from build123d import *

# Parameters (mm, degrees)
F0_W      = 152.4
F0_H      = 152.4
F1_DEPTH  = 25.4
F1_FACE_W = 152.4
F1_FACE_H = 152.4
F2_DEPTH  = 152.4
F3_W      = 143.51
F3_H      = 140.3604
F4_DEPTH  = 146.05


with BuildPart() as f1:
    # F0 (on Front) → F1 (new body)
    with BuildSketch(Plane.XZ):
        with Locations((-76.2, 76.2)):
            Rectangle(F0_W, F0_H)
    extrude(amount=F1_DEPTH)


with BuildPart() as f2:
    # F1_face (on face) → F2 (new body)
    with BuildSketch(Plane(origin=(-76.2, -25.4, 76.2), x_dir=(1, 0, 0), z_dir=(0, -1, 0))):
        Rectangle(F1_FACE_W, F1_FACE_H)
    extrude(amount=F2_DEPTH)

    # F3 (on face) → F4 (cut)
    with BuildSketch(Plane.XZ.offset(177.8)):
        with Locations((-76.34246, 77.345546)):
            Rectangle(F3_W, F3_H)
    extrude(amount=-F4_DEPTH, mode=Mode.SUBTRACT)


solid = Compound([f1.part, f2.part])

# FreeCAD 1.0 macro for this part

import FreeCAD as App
import Part
import Sketcher
Q = App.Units.Quantity

doc = App.newDocument("Part")
params = doc.addObject("Spreadsheet::Sheet", "Params")
for row, (alias, value) in enumerate([
    ("sketch1_width", "6 in"),
    ("pad1_length", "1 in"),
    ("sketch2_width", "6 in"),
    ("pad2_length", "6 in"),
    ("sketch3_width", "5.65 in"),
    ("sketch3_height", "5.526 in"),
    ("pocket1_length", "5.75 in"),
], start=1):
    params.set(f"A{row}", alias)
    params.set(f"B{row}", "=" + value)
    params.setAlias(f"B{row}", alias)

body = doc.addObject("PartDesign::Body", "Body")

sketch1 = body.newObject("Sketcher::SketchObject", "Sketch")
sketch1.AttachmentSupport = (doc.getObject("XZ_Plane"), [""])
sketch1.MapMode = "FlatFace"
sketch1.addGeometry([
    Part.LineSegment(App.Vector(-152, 152, 0), App.Vector(-152, 0, 0)),
    Part.LineSegment(App.Vector(-152, 0, 0), App.Vector(0, 0, 0)),
    Part.LineSegment(App.Vector(0, 0, 0), App.Vector(0, 152, 0)),
    Part.LineSegment(App.Vector(0, 152, 0), App.Vector(-152, 152, 0)),
], False)
sketch1.addConstraint([
    Sketcher.Constraint("Coincident", 0, 2, 1, 1),
    Sketcher.Constraint("Coincident", 1, 2, 2, 1),
    Sketcher.Constraint("Coincident", 2, 2, 3, 1),
    Sketcher.Constraint("Coincident", 3, 2, 0, 1),
    Sketcher.Constraint("Vertical", 0),
    Sketcher.Constraint("Horizontal", 1),
    Sketcher.Constraint("Vertical", 2),
    Sketcher.Constraint("Horizontal", 3),
    Sketcher.Constraint("Coincident", 1, 2, -1, 1),
    Sketcher.Constraint("Equal", 3, 0),
    Sketcher.Constraint("DistanceX", 1, 1, 1, 2, Q("6 in")),
])
sketch1.setExpression("Constraints[10]", "Params.sketch1_width")
pad1 = body.newObject("PartDesign::Pad", "Pad")
pad1.Profile = sketch1
pad1.setExpression("Length", "Params.pad1_length")
body2 = doc.addObject("PartDesign::Body", "Body001")

sketch2 = body2.newObject("Sketcher::SketchObject", "Sketch001")
sketch2.AttachmentSupport = (doc.getObject("XZ_Plane001"), [""])
sketch2.MapMode = "FlatFace"
sketch2.AttachmentOffset = App.Placement(App.Vector(0, 0, 1 * 25.4), App.Rotation())
sketch2.addGeometry([
    Part.LineSegment(App.Vector(-152, 152, 0), App.Vector(-152, 0, 0)),
    Part.LineSegment(App.Vector(-152, 0, 0), App.Vector(0, 0, 0)),
    Part.LineSegment(App.Vector(0, 0, 0), App.Vector(0, 152, 0)),
    Part.LineSegment(App.Vector(0, 152, 0), App.Vector(-152, 152, 0)),
], False)
sketch2.addConstraint([
    Sketcher.Constraint("Coincident", 0, 2, 1, 1),
    Sketcher.Constraint("Coincident", 1, 2, 2, 1),
    Sketcher.Constraint("Coincident", 2, 2, 3, 1),
    Sketcher.Constraint("Coincident", 3, 2, 0, 1),
    Sketcher.Constraint("Vertical", 0),
    Sketcher.Constraint("Horizontal", 1),
    Sketcher.Constraint("Vertical", 2),
    Sketcher.Constraint("Horizontal", 3),
    Sketcher.Constraint("Coincident", 1, 2, -1, 1),
    Sketcher.Constraint("Equal", 3, 0),
    Sketcher.Constraint("DistanceX", 1, 1, 1, 2, Q("6 in")),
])
sketch2.setExpression("Constraints[10]", "Params.sketch2_width")
pad2 = body2.newObject("PartDesign::Pad", "Pad001")
pad2.Profile = sketch2
pad2.setExpression("Length", "Params.pad2_length")

sketch3 = body2.newObject("Sketcher::SketchObject", "Sketch002")
sketch3.AttachmentSupport = (doc.getObject("XZ_Plane001"), [""])
sketch3.MapMode = "FlatFace"
sketch3.AttachmentOffset = App.Placement(App.Vector(0, 0, 7 * 25.4), App.Rotation())
sketch3.addGeometry([
    Part.LineSegment(App.Vector(-148, 148, 0), App.Vector(-148, 7, 0)),
    Part.LineSegment(App.Vector(-148, 7, 0), App.Vector(-5, 7, 0)),
    Part.LineSegment(App.Vector(-5, 7, 0), App.Vector(-5, 148, 0)),
    Part.LineSegment(App.Vector(-5, 148, 0), App.Vector(-148, 148, 0)),
], False)
sketch3.addConstraint([
    Sketcher.Constraint("Coincident", 0, 2, 1, 1),
    Sketcher.Constraint("Coincident", 1, 2, 2, 1),
    Sketcher.Constraint("Coincident", 2, 2, 3, 1),
    Sketcher.Constraint("Coincident", 3, 2, 0, 1),
    Sketcher.Constraint("Vertical", 0),
    Sketcher.Constraint("Horizontal", 1),
    Sketcher.Constraint("Vertical", 2),
    Sketcher.Constraint("Horizontal", 3),
    Sketcher.Constraint("DistanceX", 1, 1, 1, 2, Q("5.65 in")),
    Sketcher.Constraint("DistanceY", 0, 2, 0, 1, Q("5.526 in")),
    Sketcher.Constraint("DistanceX", 0, 2, -1, 1, Q("148.09746 mm")),
    Sketcher.Constraint("DistanceY", -1, 1, 0, 2, Q("7.165346 mm")),
])
sketch3.setExpression("Constraints[8]", "Params.sketch3_width")
sketch3.setExpression("Constraints[9]", "Params.sketch3_height")
pocket1 = body2.newObject("PartDesign::Pocket", "Pocket")
pocket1.Profile = sketch3
pocket1.setExpression("Length", "Params.pocket1_length")

doc.recompute()
